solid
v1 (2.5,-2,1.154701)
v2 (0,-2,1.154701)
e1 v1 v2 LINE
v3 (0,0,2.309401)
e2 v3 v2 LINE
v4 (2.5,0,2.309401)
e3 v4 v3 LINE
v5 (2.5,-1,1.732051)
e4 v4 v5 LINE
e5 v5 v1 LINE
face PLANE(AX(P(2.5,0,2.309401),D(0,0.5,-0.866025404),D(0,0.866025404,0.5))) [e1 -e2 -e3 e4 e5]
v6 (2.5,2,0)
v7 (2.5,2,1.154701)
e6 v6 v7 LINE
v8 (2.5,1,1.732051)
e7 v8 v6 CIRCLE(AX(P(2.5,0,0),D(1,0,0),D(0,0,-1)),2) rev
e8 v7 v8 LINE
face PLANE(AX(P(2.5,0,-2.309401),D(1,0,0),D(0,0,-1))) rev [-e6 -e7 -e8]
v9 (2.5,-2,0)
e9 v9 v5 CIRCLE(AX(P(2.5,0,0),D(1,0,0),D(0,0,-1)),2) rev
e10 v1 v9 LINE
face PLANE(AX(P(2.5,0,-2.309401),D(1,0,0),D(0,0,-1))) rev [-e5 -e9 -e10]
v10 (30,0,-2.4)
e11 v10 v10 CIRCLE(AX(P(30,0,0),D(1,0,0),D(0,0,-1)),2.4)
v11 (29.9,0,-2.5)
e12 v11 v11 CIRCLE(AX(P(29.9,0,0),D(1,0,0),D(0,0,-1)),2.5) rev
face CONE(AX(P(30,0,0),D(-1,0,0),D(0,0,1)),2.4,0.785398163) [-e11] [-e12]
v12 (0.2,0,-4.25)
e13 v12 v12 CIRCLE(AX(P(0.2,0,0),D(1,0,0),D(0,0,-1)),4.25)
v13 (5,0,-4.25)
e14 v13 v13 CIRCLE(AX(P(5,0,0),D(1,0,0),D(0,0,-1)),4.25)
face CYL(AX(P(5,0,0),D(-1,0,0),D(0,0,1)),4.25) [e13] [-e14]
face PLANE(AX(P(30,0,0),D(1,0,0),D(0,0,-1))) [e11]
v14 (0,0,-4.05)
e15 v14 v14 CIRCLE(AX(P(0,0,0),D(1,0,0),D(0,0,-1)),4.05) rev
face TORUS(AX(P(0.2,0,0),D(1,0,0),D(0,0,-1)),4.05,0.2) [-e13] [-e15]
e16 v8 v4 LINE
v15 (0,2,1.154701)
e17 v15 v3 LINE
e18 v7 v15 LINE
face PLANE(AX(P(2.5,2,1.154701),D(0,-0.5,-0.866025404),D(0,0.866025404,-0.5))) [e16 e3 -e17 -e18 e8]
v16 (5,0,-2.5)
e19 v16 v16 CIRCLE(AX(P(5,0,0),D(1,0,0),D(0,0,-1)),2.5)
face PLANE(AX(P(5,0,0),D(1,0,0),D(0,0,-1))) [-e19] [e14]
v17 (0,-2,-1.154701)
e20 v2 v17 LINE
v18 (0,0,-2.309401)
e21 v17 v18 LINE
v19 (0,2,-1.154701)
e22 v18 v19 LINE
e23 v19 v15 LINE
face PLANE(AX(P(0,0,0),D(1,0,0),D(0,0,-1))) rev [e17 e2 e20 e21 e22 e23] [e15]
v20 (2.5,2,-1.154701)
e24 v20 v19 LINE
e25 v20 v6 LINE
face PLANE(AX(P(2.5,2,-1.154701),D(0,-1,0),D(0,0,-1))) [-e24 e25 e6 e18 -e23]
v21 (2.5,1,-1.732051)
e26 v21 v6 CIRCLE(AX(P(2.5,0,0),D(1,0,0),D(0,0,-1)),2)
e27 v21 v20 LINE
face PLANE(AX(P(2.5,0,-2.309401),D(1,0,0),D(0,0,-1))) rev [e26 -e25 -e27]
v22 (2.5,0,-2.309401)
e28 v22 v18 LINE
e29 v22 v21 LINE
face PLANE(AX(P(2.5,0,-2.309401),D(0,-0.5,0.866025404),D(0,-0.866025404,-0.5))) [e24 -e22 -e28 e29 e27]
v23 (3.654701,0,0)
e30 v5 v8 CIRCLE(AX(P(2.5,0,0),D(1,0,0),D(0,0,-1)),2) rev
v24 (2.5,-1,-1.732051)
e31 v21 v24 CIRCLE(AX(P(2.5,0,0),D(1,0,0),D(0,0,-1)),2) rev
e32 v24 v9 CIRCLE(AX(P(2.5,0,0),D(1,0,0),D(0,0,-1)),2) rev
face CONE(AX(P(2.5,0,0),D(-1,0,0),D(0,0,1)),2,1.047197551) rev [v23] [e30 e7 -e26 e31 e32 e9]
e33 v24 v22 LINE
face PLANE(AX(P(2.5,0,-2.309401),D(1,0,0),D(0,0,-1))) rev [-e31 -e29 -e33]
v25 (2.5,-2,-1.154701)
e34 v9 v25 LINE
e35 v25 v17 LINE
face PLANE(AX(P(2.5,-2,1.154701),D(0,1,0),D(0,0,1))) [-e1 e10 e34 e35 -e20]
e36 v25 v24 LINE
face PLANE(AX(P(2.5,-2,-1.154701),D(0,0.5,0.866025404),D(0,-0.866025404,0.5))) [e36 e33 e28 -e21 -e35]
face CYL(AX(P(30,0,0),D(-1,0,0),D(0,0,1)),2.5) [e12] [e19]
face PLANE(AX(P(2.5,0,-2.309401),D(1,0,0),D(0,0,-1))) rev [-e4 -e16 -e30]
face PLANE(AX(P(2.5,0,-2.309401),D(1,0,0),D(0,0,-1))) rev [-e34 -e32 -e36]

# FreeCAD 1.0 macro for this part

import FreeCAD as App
import Part
import Sketcher
Q = App.Units.Quantity


def edges_at(feature, points):
    """Names of the edges that pass closest to the given points."""
    edges = feature.Shape.Edges
    near = lambda p: min(range(len(edges)), key=lambda i: edges[i].distToShape(Part.Vertex(*p))[0])
    return sorted({f"Edge{near(p) + 1}" for p in points})


def add_polygon(sketch, points):
    """Adds a closed chain of lines whose ends are joined by coincident constraints."""
    first, n = sketch.GeometryCount, len(points)
    for a, b in zip(points, points[1:] + points[:1]):
        sketch.addGeometry(Part.LineSegment(App.Vector(*a, 0), App.Vector(*b, 0)), False)
    for i in range(n):
        sketch.addConstraint(Sketcher.Constraint("Coincident", first + i, 2, first + (i + 1) % n, 1))

doc = App.newDocument("Part")
body = doc.addObject("PartDesign::Body", "Body")

sketch1 = body.newObject("Sketcher::SketchObject", "Sketch")
sketch1.AttachmentSupport = (doc.getObject("YZ_Plane"), [""])
sketch1.MapMode = "FlatFace"
sketch1.addGeometry(Part.Circle(App.Vector(0, 0, 0), App.Vector(0, 0, 1), 4.2), False)
sketch1.addConstraint(Sketcher.Constraint("Coincident", 0, 3, -1, 1))
sketch1.addConstraint(Sketcher.Constraint("Diameter", 0, 8.5))
pad1 = body.newObject("PartDesign::Pad", "Pad")
pad1.Profile = sketch1
pad1.Length = 5

sketch2 = body.newObject("Sketcher::SketchObject", "Sketch001")
sketch2.AttachmentSupport = (doc.getObject("YZ_Plane"), [""])
sketch2.MapMode = "FlatFace"
sketch2.AttachmentOffset = App.Placement(App.Vector(0, 0, 5), App.Rotation())
sketch2.addGeometry(Part.Circle(App.Vector(0, 0, 0), App.Vector(0, 0, 1), 2.5), False)
sketch2.addConstraint(Sketcher.Constraint("Coincident", 0, 3, -1, 1))
sketch2.addConstraint(Sketcher.Constraint("Diameter", 0, 5.0))
pad2 = body.newObject("PartDesign::Pad", "Pad001")
pad2.Profile = sketch2
pad2.Length = 25

sketch3 = body.newObject("Sketcher::SketchObject", "Sketch002")
sketch3.AttachmentSupport = (doc.getObject("YZ_Plane"), [""])
sketch3.MapMode = "FlatFace"
add_polygon(sketch3, [(0, -2.3), (2, -1.2), (2, 1.2), (0, 2.3), (-2, 1.2), (-2, -1.2)])
sketch3.addConstraint(Sketcher.Constraint("Vertical", 1))
sketch3.addConstraint(Sketcher.Constraint("Vertical", 4))
sketch3.addConstraint(Sketcher.Constraint("Symmetric", 0, 2, 3, 2, -1, 1))
sketch3.addConstraint(Sketcher.Constraint("Symmetric", 2, 2, 5, 2, -1, 1))
sketch3.addConstraint(Sketcher.Constraint("PointOnObject", 2, 2, -2))
sketch3.addConstraint(Sketcher.Constraint("Parallel", 2, 5))
sketch3.addConstraint(Sketcher.Constraint("Horizontal", 1, 2, 3, 2))
sketch3.addConstraint(Sketcher.Constraint("Angle", 0, Q("30 deg")))
sketch3.addConstraint(Sketcher.Constraint("DistanceX", -1, 1, 0, 2, 2.0))
sketch3.addConstraint(Sketcher.Constraint("DistanceY", 1, 1, 1, 2, 2.309401))
pocket1 = body.newObject("PartDesign::Pocket", "Pocket")
pocket1.Profile = sketch3
pocket1.Length = 2.5
pocket1.Reversed = True

sketch4 = body.newObject("Sketcher::SketchObject", "Sketch003")
sketch4.AttachmentSupport = (doc.getObject("XY_Plane"), [""])
sketch4.MapMode = "FlatFace"
add_polygon(sketch4, [(2.5, -2), (3.7, 0), (2.5, 0)])
sketch4.addConstraint(Sketcher.Constraint("Horizontal", 1))
sketch4.addConstraint(Sketcher.Constraint("Vertical", 2))
sketch4.addConstraint(Sketcher.Constraint("PointOnObject", 0, 2, -1))
sketch4.addConstraint(Sketcher.Constraint("DistanceY", 2, 2, 2, 1, 2.0))
sketch4.addConstraint(Sketcher.Constraint("Angle", 0, Q("60 deg")))
sketch4.addConstraint(Sketcher.Constraint("DistanceX", -1, 1, 1, 2, 2.5))
groove = body.newObject("PartDesign::Groove", "Groove")
groove.Profile = sketch4
groove.ReferenceAxis = (sketch4, ["H_Axis"])
groove.Angle = 360
doc.recompute()

fillet = body.newObject("PartDesign::Fillet", "Fillet")
fillet.Base = (groove, edges_at(groove, [(0, 0, 4.25)]))
fillet.Radius = 0.2
doc.recompute()

chamfer = body.newObject("PartDesign::Chamfer", "Chamfer")
chamfer.Base = (fillet, edges_at(fillet, [(30, 0, 2.5)]))
chamfer.Size = 0.1

doc.recompute()
